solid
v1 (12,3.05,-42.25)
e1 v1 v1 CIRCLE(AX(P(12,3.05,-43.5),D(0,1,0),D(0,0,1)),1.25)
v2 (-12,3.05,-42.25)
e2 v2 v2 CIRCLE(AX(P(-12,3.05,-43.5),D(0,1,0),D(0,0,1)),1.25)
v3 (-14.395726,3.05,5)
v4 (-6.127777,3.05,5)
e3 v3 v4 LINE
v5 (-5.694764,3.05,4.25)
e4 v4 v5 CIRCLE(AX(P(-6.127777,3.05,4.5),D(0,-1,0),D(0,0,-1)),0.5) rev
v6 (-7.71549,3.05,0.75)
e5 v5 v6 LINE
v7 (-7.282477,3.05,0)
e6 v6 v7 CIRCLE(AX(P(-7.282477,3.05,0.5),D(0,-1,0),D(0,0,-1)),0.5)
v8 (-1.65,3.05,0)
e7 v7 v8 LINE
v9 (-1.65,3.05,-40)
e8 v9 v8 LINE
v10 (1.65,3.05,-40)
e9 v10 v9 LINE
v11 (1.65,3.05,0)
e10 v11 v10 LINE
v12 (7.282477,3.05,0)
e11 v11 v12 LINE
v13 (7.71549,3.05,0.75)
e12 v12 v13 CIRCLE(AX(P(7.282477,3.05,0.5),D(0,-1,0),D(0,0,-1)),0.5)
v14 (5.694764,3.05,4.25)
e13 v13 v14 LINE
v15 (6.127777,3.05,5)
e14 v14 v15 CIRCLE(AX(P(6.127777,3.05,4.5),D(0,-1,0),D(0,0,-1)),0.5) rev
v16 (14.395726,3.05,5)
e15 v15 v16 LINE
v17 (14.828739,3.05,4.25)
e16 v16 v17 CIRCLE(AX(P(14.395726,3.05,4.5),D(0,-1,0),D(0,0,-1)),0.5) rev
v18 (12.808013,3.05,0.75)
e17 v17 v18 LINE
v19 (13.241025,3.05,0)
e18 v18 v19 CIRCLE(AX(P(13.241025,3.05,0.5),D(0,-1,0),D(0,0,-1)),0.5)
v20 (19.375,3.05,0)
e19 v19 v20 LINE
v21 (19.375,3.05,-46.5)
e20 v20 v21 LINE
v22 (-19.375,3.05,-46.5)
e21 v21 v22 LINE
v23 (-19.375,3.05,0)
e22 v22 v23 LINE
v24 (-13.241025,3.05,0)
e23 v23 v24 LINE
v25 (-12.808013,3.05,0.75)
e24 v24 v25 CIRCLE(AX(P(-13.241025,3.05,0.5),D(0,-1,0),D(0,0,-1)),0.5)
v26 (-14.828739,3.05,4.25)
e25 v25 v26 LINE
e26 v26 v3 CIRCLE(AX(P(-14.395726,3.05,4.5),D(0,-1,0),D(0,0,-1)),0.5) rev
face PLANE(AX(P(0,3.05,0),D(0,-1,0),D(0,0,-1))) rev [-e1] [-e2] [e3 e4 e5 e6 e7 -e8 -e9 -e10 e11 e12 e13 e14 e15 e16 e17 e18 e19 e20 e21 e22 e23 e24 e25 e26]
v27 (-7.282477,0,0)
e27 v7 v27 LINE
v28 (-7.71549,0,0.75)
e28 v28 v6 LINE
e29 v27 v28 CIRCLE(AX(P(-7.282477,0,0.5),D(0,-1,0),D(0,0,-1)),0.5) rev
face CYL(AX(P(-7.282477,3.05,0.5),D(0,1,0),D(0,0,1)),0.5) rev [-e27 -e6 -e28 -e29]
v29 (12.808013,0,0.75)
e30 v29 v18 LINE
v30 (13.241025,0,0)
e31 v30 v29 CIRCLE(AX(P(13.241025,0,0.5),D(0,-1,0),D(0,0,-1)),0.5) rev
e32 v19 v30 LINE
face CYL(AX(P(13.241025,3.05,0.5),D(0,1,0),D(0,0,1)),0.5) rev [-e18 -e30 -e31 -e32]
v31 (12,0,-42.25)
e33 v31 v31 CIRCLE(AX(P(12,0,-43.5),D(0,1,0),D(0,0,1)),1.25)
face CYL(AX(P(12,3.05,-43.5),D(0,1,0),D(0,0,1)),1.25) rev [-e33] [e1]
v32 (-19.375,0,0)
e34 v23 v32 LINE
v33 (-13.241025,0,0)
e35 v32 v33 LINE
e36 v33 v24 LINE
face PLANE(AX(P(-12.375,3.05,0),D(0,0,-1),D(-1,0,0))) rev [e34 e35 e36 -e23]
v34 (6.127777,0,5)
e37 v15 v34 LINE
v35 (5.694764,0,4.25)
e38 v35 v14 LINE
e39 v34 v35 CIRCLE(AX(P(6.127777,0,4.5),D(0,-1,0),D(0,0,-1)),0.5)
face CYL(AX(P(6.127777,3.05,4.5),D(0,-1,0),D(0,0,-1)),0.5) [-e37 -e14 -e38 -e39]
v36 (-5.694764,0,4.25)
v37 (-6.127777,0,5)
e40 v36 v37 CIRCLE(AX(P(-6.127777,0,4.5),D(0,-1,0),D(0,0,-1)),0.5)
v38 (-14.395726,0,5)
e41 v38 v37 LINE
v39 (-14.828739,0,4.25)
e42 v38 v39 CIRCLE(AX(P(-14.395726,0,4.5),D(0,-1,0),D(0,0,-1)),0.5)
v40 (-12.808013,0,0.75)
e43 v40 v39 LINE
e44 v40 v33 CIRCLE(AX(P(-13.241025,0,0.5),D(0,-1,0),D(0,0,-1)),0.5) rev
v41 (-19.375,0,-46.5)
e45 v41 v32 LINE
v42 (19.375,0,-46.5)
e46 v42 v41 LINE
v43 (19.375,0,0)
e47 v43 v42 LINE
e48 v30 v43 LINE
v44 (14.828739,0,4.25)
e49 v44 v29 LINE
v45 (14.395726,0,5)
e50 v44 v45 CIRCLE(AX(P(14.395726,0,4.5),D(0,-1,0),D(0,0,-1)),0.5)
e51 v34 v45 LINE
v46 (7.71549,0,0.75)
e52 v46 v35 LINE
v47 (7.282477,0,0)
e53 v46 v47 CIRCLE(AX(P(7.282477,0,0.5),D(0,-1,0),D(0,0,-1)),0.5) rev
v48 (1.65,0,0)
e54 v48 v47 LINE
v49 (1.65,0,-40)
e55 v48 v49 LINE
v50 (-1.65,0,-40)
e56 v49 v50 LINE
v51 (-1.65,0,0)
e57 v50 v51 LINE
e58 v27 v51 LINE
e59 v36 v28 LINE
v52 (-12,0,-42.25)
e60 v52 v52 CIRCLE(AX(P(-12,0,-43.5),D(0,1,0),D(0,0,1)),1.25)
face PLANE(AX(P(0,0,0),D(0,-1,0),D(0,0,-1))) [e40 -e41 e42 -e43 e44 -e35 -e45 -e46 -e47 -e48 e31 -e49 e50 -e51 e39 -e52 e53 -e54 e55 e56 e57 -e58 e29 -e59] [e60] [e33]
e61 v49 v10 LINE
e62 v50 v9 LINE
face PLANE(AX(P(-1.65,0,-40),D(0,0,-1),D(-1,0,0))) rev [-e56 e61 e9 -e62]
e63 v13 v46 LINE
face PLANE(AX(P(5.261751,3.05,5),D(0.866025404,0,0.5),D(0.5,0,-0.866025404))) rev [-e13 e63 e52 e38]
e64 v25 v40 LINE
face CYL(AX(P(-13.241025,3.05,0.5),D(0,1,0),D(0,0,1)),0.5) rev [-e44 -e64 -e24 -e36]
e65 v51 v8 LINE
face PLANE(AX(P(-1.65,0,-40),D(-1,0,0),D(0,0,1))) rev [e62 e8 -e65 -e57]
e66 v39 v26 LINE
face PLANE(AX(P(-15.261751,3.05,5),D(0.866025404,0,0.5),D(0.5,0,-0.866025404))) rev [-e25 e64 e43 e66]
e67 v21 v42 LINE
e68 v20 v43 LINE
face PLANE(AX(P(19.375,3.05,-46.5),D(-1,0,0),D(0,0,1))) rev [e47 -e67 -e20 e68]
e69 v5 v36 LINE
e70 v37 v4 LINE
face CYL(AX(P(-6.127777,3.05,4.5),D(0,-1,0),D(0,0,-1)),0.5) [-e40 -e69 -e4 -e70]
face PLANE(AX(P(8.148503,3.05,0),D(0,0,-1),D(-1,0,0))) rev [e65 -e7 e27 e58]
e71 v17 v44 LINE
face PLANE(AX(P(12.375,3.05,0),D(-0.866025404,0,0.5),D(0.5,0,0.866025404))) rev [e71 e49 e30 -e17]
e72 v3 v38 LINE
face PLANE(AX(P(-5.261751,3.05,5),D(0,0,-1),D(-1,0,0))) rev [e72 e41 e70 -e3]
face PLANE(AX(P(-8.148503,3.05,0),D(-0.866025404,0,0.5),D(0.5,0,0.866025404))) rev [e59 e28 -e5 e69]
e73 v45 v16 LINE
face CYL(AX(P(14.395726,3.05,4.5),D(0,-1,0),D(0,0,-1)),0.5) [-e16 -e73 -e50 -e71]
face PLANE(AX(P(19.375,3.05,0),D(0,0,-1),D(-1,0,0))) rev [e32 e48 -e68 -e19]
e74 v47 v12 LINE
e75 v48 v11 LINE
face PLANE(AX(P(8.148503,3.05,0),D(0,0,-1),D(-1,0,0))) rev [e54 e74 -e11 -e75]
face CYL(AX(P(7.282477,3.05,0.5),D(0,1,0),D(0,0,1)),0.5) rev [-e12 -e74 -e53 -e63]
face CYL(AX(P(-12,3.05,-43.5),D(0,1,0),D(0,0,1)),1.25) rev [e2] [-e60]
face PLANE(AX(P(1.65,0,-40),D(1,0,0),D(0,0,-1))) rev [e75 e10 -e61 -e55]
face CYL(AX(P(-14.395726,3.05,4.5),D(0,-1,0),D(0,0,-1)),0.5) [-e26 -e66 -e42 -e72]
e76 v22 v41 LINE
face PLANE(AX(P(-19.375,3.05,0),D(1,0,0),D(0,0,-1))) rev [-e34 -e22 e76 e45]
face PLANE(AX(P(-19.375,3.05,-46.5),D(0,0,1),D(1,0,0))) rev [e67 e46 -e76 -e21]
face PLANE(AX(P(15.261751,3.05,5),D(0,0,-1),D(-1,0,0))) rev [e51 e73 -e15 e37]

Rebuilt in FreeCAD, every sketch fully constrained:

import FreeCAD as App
import Part
import Sketcher

V = App.Vector
Q = App.Units.Quantity


def edges_at(feature, points):
    """Names of the edges that pass closest to the given points."""
    edges = feature.Shape.Edges
    near = lambda p: min(range(len(edges)), key=lambda i: edges[i].distToShape(Part.Vertex(*p))[0])
    return sorted({f"Edge{near(p) + 1}" for p in points})

doc = App.newDocument("Part")
body = doc.addObject("PartDesign::Body", "Body")

sketch1 = doc.addObject("Sketcher::SketchObject", "Sketch")
body.addObject(sketch1)
sketch1.AttachmentSupport = (doc.XZ_Plane, [""])
sketch1.MapMode = "FlatFace"
sketch1.addGeometry(Part.LineSegment(V(-19, -46, 0), V(-19, 0, 0)), False)
sketch1.addGeometry(Part.LineSegment(V(-19, 0, 0), V(-12, 0, 0)), False)
sketch1.addGeometry(Part.LineSegment(V(-12, 0, 0), V(-15, 5, 0)), False)
sketch1.addGeometry(Part.LineSegment(V(-15, 5, 0), V(-5, 5, 0)), False)
sketch1.addGeometry(Part.LineSegment(V(-5, 5, 0), V(-8, 0, 0)), False)
sketch1.addGeometry(Part.LineSegment(V(-8, 0, 0), V(8, 0, 0)), False)
sketch1.addGeometry(Part.LineSegment(V(8, 0, 0), V(5, 5, 0)), False)
sketch1.addGeometry(Part.LineSegment(V(5, 5, 0), V(15, 5, 0)), False)
sketch1.addGeometry(Part.LineSegment(V(15, 5, 0), V(12, 0, 0)), False)
sketch1.addGeometry(Part.LineSegment(V(12, 0, 0), V(19, 0, 0)), False)
sketch1.addGeometry(Part.LineSegment(V(19, 0, 0), V(19, -46, 0)), False)
sketch1.addGeometry(Part.LineSegment(V(19, -46, 0), V(-19, -46, 0)), False)
sketch1.addConstraint(Sketcher.Constraint("Coincident", 0, 2, 1, 1))
sketch1.addConstraint(Sketcher.Constraint("Coincident", 1, 2, 2, 1))
sketch1.addConstraint(Sketcher.Constraint("Coincident", 2, 2, 3, 1))
sketch1.addConstraint(Sketcher.Constraint("Coincident", 3, 2, 4, 1))
sketch1.addConstraint(Sketcher.Constraint("Coincident", 4, 2, 5, 1))
sketch1.addConstraint(Sketcher.Constraint("Coincident", 5, 2, 6, 1))
sketch1.addConstraint(Sketcher.Constraint("Coincident", 6, 2, 7, 1))
sketch1.addConstraint(Sketcher.Constraint("Coincident", 7, 2, 8, 1))
sketch1.addConstraint(Sketcher.Constraint("Coincident", 8, 2, 9, 1))
sketch1.addConstraint(Sketcher.Constraint("Coincident", 9, 2, 10, 1))
sketch1.addConstraint(Sketcher.Constraint("Coincident", 10, 2, 11, 1))
sketch1.addConstraint(Sketcher.Constraint("Coincident", 11, 2, 0, 1))
sketch1.addConstraint(Sketcher.Constraint("Vertical", 0))
sketch1.addConstraint(Sketcher.Constraint("Horizontal", 1))
sketch1.addConstraint(Sketcher.Constraint("Horizontal", 3))
sketch1.addConstraint(Sketcher.Constraint("Horizontal", 5))
sketch1.addConstraint(Sketcher.Constraint("Horizontal", 7))
sketch1.addConstraint(Sketcher.Constraint("Horizontal", 9))
sketch1.addConstraint(Sketcher.Constraint("Vertical", 10))
sketch1.addConstraint(Sketcher.Constraint("Horizontal", 11))
sketch1.addConstraint(Sketcher.Constraint("Symmetric", 4, 2, 5, 2, -1, 1))
sketch1.addConstraint(Sketcher.Constraint("Symmetric", 1, 2, 8, 2, -1, 1))
sketch1.addConstraint(Sketcher.Constraint("Symmetric", 3, 2, 6, 2, -2))
sketch1.addConstraint(Sketcher.Constraint("Symmetric", 0, 2, 9, 2, -2))
sketch1.addConstraint(Sketcher.Constraint("Parallel", 2, 6))
sketch1.addConstraint(Sketcher.Constraint("Parallel", 4, 8))
sketch1.addConstraint(Sketcher.Constraint("DistanceX", 1, 1, 1, 2, 7.0))
sketch1.addConstraint(Sketcher.Constraint("DistanceX", 3, 1, 3, 2, 10.0))
sketch1.addConstraint(Sketcher.Constraint("Angle", 2, Q("120 deg")))
sketch1.addConstraint(Sketcher.Constraint("DistanceY", 0, 1, 0, 2, 46.5))
sketch1.addConstraint(Sketcher.Constraint("DistanceY", -1, 1, 2, 2, 5.0))
sketch1.addConstraint(Sketcher.Constraint("DistanceX", 11, 2, 11, 1, 38.75))
pad1 = doc.addObject("PartDesign::Pad", "Pad")
body.addObject(pad1)
pad1.Profile = sketch1
pad1.Length = 3.05
pad1.Reversed = True
doc.recompute()

fillet = doc.addObject("PartDesign::Fillet", "Fillet")
body.addObject(fillet)
fillet.Base = (pad1, edges_at(pad1, [
    (12.375, 1.525, 0),
    (15.262, 1.525, 5),
    (5.262, 1.525, 5),
    (8.149, 1.525, 0),
    (-8.149, 1.525, 0),
    (-5.262, 1.525, 5),
    (-15.262, 1.525, 5),
    (-12.375, 1.525, 0),
]))
fillet.Radius = 0.5

sketch2 = doc.addObject("Sketcher::SketchObject", "Sketch001")
body.addObject(sketch2)
sketch2.AttachmentSupport = (doc.XZ_Plane, [""])
sketch2.MapMode = "FlatFace"
sketch2.AttachmentOffset = App.Placement(V(0, 0, -3.05), App.Rotation())
sketch2.addGeometry(Part.LineSegment(V(-1.6, -40, 0), V(-1.6, 0, 0)), False)
sketch2.addGeometry(Part.LineSegment(V(-1.6, 0, 0), V(1.6, 0, 0)), False)
sketch2.addGeometry(Part.LineSegment(V(1.6, 0, 0), V(1.6, -40, 0)), False)
sketch2.addGeometry(Part.LineSegment(V(1.6, -40, 0), V(-1.6, -40, 0)), False)
sketch2.addGeometry(Part.LineSegment(V(-1.6, 1.2, 0), V(-1.6, 2.2, 0)), False)
sketch2.addGeometry(Part.LineSegment(V(-1.6, 2.2, 0), V(1.6, 2.2, 0)), False)
sketch2.addGeometry(Part.LineSegment(V(1.6, 2.2, 0), V(1.6, 1.2, 0)), False)
sketch2.addGeometry(Part.LineSegment(V(1.6, 1.2, 0), V(-1.6, 1.2, 0)), False)
sketch2.addConstraint(Sketcher.Constraint("Coincident", 0, 2, 1, 1))
sketch2.addConstraint(Sketcher.Constraint("Coincident", 1, 2, 2, 1))
sketch2.addConstraint(Sketcher.Constraint("Coincident", 2, 2, 3, 1))
sketch2.addConstraint(Sketcher.Constraint("Coincident", 3, 2, 0, 1))
sketch2.addConstraint(Sketcher.Constraint("Coincident", 4, 2, 5, 1))
sketch2.addConstraint(Sketcher.Constraint("Coincident", 5, 2, 6, 1))
sketch2.addConstraint(Sketcher.Constraint("Coincident", 6, 2, 7, 1))
sketch2.addConstraint(Sketcher.Constraint("Coincident", 7, 2, 4, 1))
sketch2.addConstraint(Sketcher.Constraint("Vertical", 0))
sketch2.addConstraint(Sketcher.Constraint("Horizontal", 1))
sketch2.addConstraint(Sketcher.Constraint("Vertical", 2))
sketch2.addConstraint(Sketcher.Constraint("Horizontal", 3))
sketch2.addConstraint(Sketcher.Constraint("Vertical", 4))
sketch2.addConstraint(Sketcher.Constraint("Horizontal", 5))
sketch2.addConstraint(Sketcher.Constraint("Vertical", 6))
sketch2.addConstraint(Sketcher.Constraint("Horizontal", 7))
sketch2.addConstraint(Sketcher.Constraint("Symmetric", 0, 2, 1, 2, -1, 1))
sketch2.addConstraint(Sketcher.Constraint("Vertical", 3, 2, 4, 2))
sketch2.addConstraint(Sketcher.Constraint("Vertical", 2, 2, 5, 2))
sketch2.addConstraint(Sketcher.Constraint("DistanceY", 0, 1, 0, 2, 40.0))
sketch2.addConstraint(Sketcher.Constraint("DistanceY", 4, 1, 4, 2, 1.0))
sketch2.addConstraint(Sketcher.Constraint("DistanceX", 1, 1, 1, 2, 3.3))
sketch2.addConstraint(Sketcher.Constraint("DistanceY", -1, 1, 4, 2, 2.2))
pocket1 = doc.addObject("PartDesign::Pocket", "Pocket")
body.addObject(pocket1)
pocket1.Profile = sketch2
pocket1.Type = "ThroughAll"
pocket1.Reversed = True

sketch3 = doc.addObject("Sketcher::SketchObject", "Sketch002")
body.addObject(sketch3)
sketch3.AttachmentSupport = (doc.XZ_Plane, [""])
sketch3.MapMode = "FlatFace"
sketch3.AttachmentOffset = App.Placement(V(0, 0, -3.05), App.Rotation())
sketch3.addGeometry(Part.Circle(V(-12, -43.5, 0), V(0, 0, 1), 1.2), False)
sketch3.addGeometry(Part.Circle(V(12, -43.5, 0), V(0, 0, 1), 1.2), False)
sketch3.addConstraint(Sketcher.Constraint("Equal", 0, 1))
sketch3.addConstraint(Sketcher.Constraint("Symmetric", 0, 3, 1, 3, -2))
sketch3.addConstraint(Sketcher.Constraint("Diameter", 0, 2.5))
sketch3.addConstraint(Sketcher.Constraint("DistanceX", 0, 3, -1, 1, 12.0))
sketch3.addConstraint(Sketcher.Constraint("DistanceY", 0, 3, -1, 1, 43.5))
doc.recompute()
hole = doc.addObject("PartDesign::Hole", "Hole")
body.addObject(hole)
hole.Profile = sketch3
hole.ThreadType = "None"
hole.Diameter = 2.5
hole.DepthType = "ThroughAll"
hole.Reversed = True

doc.recompute()
